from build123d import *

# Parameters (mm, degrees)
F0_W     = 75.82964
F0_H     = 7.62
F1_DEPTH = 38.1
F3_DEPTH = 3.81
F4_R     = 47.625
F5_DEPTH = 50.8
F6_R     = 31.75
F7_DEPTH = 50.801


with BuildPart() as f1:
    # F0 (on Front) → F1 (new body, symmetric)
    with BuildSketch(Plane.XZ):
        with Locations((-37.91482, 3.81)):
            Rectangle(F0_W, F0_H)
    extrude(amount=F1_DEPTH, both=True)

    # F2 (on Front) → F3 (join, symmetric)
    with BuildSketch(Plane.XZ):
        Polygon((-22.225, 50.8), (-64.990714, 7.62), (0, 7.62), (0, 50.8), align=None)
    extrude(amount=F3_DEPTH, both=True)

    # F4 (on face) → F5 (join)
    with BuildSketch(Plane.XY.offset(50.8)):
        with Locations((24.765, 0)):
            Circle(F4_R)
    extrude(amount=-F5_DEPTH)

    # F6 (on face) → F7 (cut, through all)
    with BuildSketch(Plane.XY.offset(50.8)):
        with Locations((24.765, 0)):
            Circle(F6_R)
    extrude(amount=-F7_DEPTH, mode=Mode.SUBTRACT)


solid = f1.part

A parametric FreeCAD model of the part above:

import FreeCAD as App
import Part
import Sketcher

V = App.Vector
Q = App.Units.Quantity

doc = App.newDocument("Part")
body = doc.addObject("PartDesign::Body", "Body")

# Sketch on XZ plane
sketch1 = body.newObject("Sketcher::SketchObject", "Sketch")
sketch1.AttachmentSupport = (doc.getObject("XZ_Plane"), [""])
sketch1.MapMode = "FlatFace"
sketch1.addGeometry([
    Part.LineSegment(V(-76, 8, 0), V(-76, 0, 0)),
    Part.LineSegment(V(-76, 0, 0), V(0, 0, 0)),
    Part.LineSegment(V(0, 0, 0), V(0, 8, 0)),
    Part.LineSegment(V(0, 8, 0), V(-76, 8, 0)),
], False)
sketch1.addConstraint([
    Sketcher.Constraint("Coincident", 0, 2, 1, 1),
    Sketcher.Constraint("Coincident", 1, 2, 2, 1),
    Sketcher.Constraint("Coincident", 2, 2, 3, 1),
    Sketcher.Constraint("Coincident", 3, 2, 0, 1),
    Sketcher.Constraint("Vertical", 0),
    Sketcher.Constraint("Horizontal", 1),
    Sketcher.Constraint("Vertical", 2),
    Sketcher.Constraint("Horizontal", 3),
    Sketcher.Constraint("Coincident", 1, 2, -1, 1),
    Sketcher.Constraint("DistanceY", 0, 2, 0, 1, Q("0.3 in")),
    Sketcher.Constraint("DistanceX", 1, 1, 1, 2, 75.82964),
])
pad1 = body.newObject("PartDesign::Pad", "Pad")
pad1.Profile = sketch1
pad1.Length = Q("3 in")
pad1.Midplane = True

# Sketch on XZ plane
sketch2 = body.newObject("Sketcher::SketchObject", "Sketch001")
sketch2.AttachmentSupport = (doc.getObject("XZ_Plane"), [""])
sketch2.MapMode = "FlatFace"
sketch2.addGeometry([
    Part.LineSegment(V(-22, 51, 0), V(-65, 8, 0)),
    Part.LineSegment(V(-65, 8, 0), V(0, 8, 0)),
    Part.LineSegment(V(0, 8, 0), V(0, 51, 0)),
    Part.LineSegment(V(0, 51, 0), V(-22, 51, 0)),
], False)
sketch2.addConstraint([
    Sketcher.Constraint("Coincident", 0, 2, 1, 1),
    Sketcher.Constraint("Coincident", 1, 2, 2, 1),
    Sketcher.Constraint("Coincident", 2, 2, 3, 1),
    Sketcher.Constraint("Coincident", 3, 2, 0, 1),
    Sketcher.Constraint("Horizontal", 1),
    Sketcher.Constraint("Vertical", 2),
    Sketcher.Constraint("Horizontal", 3),
    Sketcher.Constraint("PointOnObject", 1, 2, -2),
    Sketcher.Constraint("DistanceY", 2, 1, 2, 2, Q("1.7 in")),
    Sketcher.Constraint("DistanceY", -1, 1, 2, 2, Q("2 in")),
    Sketcher.Constraint("DistanceX", 3, 2, 3, 1, Q("0.875 in")),
    Sketcher.Constraint("DistanceX", 1, 1, 1, 2, 64.990714),
])
pad2 = body.newObject("PartDesign::Pad", "Pad001")
pad2.Profile = sketch2
pad2.Length = Q("0.3 in")
pad2.Midplane = True

# Sketch on XY plane
sketch3 = body.newObject("Sketcher::SketchObject", "Sketch002")
sketch3.AttachmentSupport = (doc.getObject("XY_Plane"), [""])
sketch3.MapMode = "FlatFace"
sketch3.AttachmentOffset = App.Placement(V(0, 0, 2 * 25.4), App.Rotation())
sketch3.addGeometry(Part.Circle(V(25, 0, 0), V(0, 0, 1), 48), False)
sketch3.addConstraint([
    Sketcher.Constraint("PointOnObject", 0, 3, -1),
    Sketcher.Constraint("Diameter", 0, Q("3.75 in")),
    Sketcher.Constraint("DistanceX", -1, 1, 0, 3, Q("0.975 in")),
])
pad3 = body.newObject("PartDesign::Pad", "Pad002")
pad3.Profile = sketch3
pad3.Length = Q("2 in")
pad3.Reversed = True

# Sketch on XY plane
sketch4 = body.newObject("Sketcher::SketchObject", "Sketch003")
sketch4.AttachmentSupport = (doc.getObject("XY_Plane"), [""])
sketch4.MapMode = "FlatFace"
sketch4.AttachmentOffset = App.Placement(V(0, 0, 2 * 25.4), App.Rotation())
sketch4.addGeometry(Part.Circle(V(25, 0, 0), V(0, 0, 1), 32), False)
sketch4.addConstraint([
    Sketcher.Constraint("PointOnObject", 0, 3, -1),
    Sketcher.Constraint("Diameter", 0, Q("2.5 in")),
    Sketcher.Constraint("DistanceX", -1, 1, 0, 3, Q("0.975 in")),
])
pocket1 = body.newObject("PartDesign::Pocket", "Pocket")
pocket1.Profile = sketch4
pocket1.Type = "ThroughAll"

doc.recompute()
